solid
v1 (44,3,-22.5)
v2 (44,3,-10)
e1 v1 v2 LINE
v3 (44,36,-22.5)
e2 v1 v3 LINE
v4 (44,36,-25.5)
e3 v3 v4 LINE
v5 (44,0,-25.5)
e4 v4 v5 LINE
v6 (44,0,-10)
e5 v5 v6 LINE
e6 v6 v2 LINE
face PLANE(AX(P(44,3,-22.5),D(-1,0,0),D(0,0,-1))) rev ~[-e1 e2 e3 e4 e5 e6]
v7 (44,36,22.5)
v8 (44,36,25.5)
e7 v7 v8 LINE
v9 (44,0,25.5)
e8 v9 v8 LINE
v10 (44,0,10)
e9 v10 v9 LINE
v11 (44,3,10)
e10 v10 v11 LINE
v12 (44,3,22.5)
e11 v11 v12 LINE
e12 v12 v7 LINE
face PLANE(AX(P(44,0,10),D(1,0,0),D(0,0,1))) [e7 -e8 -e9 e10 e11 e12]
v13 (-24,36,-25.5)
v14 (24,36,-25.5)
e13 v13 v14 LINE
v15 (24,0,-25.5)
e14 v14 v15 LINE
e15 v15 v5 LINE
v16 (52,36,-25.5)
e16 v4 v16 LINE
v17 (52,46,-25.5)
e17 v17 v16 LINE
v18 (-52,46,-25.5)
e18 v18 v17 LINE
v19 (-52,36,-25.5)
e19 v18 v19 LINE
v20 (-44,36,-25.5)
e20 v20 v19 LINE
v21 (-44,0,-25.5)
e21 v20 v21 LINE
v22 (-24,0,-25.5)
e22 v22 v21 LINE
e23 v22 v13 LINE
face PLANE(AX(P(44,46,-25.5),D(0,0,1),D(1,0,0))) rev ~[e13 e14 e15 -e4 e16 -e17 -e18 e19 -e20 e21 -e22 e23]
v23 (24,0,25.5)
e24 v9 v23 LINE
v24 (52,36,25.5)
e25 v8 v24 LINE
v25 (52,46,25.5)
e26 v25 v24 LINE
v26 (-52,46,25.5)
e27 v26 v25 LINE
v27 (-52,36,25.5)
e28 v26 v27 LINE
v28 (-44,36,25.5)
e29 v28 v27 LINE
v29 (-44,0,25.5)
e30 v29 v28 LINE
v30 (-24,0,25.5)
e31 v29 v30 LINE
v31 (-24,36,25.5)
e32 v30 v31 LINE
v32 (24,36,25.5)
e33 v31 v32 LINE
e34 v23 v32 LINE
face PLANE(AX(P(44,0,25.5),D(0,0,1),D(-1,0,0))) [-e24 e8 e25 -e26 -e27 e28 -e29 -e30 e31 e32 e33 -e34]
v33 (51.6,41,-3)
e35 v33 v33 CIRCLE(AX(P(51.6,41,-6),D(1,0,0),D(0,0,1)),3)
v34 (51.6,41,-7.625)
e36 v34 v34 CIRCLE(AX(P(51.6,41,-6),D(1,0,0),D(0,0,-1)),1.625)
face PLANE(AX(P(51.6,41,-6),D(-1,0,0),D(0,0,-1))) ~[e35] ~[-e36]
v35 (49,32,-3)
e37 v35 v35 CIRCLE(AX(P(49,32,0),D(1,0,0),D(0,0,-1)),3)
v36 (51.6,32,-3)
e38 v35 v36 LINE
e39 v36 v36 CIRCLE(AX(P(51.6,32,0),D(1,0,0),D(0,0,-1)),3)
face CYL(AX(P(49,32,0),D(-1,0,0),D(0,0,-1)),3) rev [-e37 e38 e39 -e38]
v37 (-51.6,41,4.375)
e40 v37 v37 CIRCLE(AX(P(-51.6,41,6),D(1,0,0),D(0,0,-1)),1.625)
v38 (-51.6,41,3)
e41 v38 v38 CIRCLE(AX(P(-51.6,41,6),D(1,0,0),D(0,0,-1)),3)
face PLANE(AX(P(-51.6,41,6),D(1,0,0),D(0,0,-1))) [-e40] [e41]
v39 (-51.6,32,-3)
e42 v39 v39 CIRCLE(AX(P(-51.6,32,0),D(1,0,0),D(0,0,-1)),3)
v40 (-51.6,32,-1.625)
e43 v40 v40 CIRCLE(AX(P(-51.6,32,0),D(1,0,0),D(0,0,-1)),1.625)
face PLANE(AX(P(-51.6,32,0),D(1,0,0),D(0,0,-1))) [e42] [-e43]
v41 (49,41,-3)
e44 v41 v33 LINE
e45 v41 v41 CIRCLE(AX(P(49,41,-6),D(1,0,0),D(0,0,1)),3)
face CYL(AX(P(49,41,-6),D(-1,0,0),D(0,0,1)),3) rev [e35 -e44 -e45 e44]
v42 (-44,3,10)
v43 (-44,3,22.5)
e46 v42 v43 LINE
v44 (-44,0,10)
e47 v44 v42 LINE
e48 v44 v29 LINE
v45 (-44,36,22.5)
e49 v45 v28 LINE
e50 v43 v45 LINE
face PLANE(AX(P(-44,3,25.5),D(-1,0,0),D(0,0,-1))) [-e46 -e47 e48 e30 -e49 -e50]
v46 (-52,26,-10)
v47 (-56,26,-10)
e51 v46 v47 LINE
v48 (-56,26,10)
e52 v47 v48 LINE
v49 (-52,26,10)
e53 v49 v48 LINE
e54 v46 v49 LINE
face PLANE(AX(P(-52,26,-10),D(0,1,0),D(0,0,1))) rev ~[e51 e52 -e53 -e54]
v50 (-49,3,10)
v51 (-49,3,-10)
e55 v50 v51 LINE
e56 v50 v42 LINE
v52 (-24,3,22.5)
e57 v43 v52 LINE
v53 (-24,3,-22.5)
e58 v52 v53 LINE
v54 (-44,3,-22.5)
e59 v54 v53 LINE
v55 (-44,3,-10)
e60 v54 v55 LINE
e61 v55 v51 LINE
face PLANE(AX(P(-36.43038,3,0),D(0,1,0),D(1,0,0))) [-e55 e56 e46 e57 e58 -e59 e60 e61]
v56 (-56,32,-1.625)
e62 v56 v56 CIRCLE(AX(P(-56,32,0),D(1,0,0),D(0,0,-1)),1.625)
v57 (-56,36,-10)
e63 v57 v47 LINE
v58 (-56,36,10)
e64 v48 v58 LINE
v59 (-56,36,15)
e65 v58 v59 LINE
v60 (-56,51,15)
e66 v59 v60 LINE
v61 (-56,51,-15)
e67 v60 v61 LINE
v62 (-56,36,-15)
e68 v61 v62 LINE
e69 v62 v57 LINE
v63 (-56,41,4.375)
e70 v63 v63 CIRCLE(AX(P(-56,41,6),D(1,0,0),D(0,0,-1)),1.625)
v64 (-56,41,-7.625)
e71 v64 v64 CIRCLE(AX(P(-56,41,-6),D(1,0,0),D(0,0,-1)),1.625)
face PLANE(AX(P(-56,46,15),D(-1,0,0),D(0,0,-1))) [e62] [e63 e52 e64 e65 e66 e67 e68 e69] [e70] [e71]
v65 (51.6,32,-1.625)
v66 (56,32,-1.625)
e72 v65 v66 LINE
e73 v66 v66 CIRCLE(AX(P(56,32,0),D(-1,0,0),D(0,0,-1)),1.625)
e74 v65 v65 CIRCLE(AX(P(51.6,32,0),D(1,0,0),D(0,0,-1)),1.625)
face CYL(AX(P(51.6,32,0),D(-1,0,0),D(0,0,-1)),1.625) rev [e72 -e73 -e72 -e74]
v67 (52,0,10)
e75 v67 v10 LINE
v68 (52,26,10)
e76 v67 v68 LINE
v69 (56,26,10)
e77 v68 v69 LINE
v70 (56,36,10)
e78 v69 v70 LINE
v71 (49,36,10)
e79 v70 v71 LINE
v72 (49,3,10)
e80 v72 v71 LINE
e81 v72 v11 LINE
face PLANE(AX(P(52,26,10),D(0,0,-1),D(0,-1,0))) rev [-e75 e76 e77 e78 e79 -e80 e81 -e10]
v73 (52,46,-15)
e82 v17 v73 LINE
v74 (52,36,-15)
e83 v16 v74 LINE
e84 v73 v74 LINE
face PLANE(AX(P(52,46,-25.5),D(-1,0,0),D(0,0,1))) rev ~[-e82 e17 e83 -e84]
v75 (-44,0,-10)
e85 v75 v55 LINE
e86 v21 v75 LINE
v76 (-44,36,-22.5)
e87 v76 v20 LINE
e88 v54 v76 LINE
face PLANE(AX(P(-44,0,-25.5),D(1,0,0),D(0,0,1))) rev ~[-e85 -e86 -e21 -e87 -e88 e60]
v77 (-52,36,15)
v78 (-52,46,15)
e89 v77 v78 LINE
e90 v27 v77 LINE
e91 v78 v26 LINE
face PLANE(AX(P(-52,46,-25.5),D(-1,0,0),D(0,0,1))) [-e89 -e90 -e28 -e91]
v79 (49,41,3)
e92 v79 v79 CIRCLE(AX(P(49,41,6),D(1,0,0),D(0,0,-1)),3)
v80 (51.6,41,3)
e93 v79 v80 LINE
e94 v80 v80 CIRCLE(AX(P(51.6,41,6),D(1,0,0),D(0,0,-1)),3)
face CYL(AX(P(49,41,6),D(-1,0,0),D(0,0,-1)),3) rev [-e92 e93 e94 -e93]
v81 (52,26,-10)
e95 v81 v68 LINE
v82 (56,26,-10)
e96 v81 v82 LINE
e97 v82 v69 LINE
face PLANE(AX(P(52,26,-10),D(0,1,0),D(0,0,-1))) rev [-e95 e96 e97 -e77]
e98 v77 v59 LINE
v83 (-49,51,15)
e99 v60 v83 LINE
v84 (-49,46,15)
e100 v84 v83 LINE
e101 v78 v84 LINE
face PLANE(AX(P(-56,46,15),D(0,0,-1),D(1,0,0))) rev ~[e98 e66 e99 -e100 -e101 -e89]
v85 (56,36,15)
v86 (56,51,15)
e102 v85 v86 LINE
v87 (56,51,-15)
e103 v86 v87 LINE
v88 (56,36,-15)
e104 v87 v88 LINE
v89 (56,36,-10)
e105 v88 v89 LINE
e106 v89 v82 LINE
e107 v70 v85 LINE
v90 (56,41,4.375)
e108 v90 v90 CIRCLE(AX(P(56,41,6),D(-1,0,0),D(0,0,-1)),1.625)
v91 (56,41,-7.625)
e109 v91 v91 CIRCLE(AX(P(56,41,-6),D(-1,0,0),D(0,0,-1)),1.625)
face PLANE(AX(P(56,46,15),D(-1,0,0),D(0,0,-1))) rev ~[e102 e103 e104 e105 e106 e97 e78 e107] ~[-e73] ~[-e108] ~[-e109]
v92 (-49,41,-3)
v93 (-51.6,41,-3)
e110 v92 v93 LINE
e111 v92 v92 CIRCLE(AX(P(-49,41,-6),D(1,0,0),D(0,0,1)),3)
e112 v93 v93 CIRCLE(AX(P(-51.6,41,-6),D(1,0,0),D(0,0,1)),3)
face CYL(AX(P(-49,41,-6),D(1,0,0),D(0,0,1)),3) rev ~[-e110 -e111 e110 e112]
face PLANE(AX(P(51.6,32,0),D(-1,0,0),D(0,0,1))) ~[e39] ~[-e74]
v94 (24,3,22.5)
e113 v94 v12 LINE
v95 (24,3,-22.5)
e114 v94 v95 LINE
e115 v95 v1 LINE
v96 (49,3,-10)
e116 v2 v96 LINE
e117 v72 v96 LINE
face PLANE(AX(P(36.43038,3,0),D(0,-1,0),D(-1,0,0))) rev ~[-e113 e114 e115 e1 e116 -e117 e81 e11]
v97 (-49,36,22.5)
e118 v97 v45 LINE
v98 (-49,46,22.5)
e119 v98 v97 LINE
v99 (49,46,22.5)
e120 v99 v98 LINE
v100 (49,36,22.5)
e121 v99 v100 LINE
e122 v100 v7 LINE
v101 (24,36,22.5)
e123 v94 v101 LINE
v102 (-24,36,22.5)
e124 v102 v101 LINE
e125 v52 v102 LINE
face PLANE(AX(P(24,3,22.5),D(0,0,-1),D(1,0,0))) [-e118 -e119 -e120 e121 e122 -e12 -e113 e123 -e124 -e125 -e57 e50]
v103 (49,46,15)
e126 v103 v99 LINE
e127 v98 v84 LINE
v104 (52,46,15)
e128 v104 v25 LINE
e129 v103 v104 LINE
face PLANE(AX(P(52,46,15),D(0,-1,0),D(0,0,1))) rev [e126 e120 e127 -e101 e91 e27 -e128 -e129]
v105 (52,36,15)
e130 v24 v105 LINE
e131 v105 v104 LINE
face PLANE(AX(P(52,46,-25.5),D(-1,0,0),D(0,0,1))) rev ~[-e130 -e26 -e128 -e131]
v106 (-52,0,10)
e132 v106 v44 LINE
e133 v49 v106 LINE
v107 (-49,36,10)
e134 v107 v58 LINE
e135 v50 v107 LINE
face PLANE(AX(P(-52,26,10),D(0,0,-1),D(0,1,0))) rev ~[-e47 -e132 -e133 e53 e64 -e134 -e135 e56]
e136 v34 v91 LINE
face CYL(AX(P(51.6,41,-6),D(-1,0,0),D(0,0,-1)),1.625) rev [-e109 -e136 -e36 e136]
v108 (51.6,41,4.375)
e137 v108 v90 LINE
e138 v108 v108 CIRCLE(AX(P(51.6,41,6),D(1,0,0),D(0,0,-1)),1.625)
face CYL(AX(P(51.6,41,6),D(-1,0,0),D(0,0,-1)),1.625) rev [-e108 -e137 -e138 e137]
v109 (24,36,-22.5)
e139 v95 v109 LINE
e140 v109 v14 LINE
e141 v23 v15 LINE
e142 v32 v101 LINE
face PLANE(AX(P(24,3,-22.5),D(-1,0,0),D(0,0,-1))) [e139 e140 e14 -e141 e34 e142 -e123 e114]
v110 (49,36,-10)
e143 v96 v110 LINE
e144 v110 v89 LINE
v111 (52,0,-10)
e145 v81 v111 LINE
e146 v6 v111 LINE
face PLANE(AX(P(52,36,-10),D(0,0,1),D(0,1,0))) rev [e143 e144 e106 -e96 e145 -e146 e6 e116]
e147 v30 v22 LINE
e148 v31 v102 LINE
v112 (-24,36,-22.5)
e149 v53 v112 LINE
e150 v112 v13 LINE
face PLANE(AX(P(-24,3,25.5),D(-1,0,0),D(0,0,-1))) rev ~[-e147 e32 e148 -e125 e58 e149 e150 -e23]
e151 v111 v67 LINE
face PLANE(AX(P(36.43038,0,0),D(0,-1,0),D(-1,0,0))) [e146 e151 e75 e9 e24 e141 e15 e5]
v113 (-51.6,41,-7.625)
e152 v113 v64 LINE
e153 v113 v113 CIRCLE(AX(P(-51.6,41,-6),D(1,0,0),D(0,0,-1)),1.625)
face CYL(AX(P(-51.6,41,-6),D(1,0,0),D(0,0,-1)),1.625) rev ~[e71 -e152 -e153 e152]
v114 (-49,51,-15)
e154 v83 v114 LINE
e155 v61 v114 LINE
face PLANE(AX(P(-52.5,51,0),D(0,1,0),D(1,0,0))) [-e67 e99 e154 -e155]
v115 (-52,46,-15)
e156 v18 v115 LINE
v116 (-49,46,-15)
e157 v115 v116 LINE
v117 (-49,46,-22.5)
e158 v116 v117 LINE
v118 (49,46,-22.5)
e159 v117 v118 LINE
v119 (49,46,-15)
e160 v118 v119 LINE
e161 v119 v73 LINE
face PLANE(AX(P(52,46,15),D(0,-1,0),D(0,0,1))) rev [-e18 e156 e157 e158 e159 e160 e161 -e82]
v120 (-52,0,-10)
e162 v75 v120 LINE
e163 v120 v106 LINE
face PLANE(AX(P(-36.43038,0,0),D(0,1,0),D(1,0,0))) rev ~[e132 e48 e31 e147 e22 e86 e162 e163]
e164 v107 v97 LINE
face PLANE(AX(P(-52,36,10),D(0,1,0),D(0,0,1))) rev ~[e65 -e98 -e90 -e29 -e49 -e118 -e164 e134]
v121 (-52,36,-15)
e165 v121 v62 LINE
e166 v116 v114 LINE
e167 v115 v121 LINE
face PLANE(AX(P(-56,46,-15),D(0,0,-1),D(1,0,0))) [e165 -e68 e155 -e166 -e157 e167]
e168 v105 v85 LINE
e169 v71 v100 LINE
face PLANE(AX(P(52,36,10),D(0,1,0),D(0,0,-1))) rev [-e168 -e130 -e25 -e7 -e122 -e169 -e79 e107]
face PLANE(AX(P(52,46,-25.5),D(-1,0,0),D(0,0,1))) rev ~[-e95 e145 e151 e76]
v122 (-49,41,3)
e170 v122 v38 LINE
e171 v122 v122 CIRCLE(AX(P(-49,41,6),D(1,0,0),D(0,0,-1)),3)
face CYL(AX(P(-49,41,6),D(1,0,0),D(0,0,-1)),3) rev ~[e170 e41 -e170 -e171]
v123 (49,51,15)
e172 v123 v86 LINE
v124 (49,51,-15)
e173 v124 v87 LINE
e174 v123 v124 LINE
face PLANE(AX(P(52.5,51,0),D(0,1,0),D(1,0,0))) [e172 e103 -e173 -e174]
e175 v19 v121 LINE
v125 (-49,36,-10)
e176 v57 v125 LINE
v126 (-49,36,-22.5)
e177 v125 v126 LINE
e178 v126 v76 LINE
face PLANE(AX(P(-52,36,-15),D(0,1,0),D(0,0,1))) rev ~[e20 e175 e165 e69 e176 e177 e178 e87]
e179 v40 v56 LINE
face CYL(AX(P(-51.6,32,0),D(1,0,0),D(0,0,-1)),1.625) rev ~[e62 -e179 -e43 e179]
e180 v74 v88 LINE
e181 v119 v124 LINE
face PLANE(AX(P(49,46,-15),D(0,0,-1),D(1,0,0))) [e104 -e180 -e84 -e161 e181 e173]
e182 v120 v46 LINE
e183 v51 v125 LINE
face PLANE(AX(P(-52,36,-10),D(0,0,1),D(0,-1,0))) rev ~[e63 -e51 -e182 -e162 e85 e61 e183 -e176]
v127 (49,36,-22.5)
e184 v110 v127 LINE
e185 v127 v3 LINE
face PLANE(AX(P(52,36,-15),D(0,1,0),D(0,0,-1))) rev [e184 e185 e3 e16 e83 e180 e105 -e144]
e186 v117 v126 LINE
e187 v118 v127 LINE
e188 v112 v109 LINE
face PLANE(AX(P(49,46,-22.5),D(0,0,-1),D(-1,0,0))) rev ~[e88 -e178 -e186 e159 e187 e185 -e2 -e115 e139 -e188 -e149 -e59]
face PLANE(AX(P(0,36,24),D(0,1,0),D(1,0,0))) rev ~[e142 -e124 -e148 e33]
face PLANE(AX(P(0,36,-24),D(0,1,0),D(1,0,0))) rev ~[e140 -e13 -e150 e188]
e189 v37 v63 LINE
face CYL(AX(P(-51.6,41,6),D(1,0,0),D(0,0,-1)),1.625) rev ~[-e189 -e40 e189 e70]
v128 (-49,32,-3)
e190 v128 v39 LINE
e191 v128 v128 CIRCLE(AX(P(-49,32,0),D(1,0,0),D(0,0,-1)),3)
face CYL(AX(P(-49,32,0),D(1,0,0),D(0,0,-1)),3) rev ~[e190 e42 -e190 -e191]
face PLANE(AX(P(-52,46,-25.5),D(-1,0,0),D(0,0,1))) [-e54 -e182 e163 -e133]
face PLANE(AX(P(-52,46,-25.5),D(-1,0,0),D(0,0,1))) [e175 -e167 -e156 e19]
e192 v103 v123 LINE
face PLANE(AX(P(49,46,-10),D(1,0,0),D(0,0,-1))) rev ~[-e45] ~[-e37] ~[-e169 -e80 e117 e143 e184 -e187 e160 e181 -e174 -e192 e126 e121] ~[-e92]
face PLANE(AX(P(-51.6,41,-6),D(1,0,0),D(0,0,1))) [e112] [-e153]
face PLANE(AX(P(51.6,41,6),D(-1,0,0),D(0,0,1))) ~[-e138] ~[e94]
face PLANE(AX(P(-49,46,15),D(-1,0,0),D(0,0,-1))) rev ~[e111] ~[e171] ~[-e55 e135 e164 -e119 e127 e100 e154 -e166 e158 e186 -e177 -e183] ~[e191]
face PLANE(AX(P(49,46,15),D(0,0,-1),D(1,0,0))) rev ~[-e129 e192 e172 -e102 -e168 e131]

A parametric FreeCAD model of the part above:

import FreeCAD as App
import Part
import Sketcher

V = App.Vector

doc = App.newDocument("Part")
body = doc.addObject("PartDesign::Body", "Body")

# Sketch on XZ plane
sketch1 = body.newObject("Sketcher::SketchObject", "Sketch")
sketch1.AttachmentSupport = (doc.getObject("XZ_Plane"), [""])
sketch1.MapMode = "FlatFace"
sketch1.addGeometry([
    Part.LineSegment(V(44, -26, 0), V(24, -26, 0)),  # 0
    Part.LineSegment(V(24, -26, 0), V(24, 26, 0)),  # 1
    Part.LineSegment(V(24, 26, 0), V(44, 26, 0)),  # 2
    Part.LineSegment(V(44, 26, 0), V(44, 10, 0)),  # 3
    Part.LineSegment(V(44, 10, 0), V(52, 10, 0)),  # 4
    Part.LineSegment(V(52, 10, 0), V(52, -10, 0)),  # 5
    Part.LineSegment(V(52, -10, 0), V(44, -10, 0)),  # 6
    Part.LineSegment(V(44, -10, 0), V(44, -26, 0)),  # 7
], False)
sketch1.addConstraint([
    Sketcher.Constraint("Coincident", 0, 2, 1, 1),
    Sketcher.Constraint("Coincident", 1, 2, 2, 1),
    Sketcher.Constraint("Coincident", 2, 2, 3, 1),
    Sketcher.Constraint("Coincident", 3, 2, 4, 1),
    Sketcher.Constraint("Coincident", 4, 2, 5, 1),
    Sketcher.Constraint("Coincident", 5, 2, 6, 1),
    Sketcher.Constraint("Coincident", 6, 2, 7, 1),
    Sketcher.Constraint("Coincident", 7, 2, 0, 1),
    Sketcher.Constraint("Horizontal", 0),
    Sketcher.Constraint("Vertical", 1),
    Sketcher.Constraint("Horizontal", 2),
    Sketcher.Constraint("Vertical", 3),
    Sketcher.Constraint("Horizontal", 4),
    Sketcher.Constraint("Vertical", 5),
    Sketcher.Constraint("Horizontal", 6),
    Sketcher.Constraint("Vertical", 7),
    Sketcher.Constraint("Symmetric", 3, 2, 6, 2, -1),
    Sketcher.Constraint("Equal", 2, 5),
    Sketcher.Constraint("Equal", 3, 7),
    Sketcher.Constraint("DistanceX", 0, 2, 0, 1, 20.0),
    Sketcher.Constraint("DistanceX", 4, 1, 4, 2, 8.0),
    Sketcher.Constraint("DistanceY", 1, 1, 1, 2, 51.0),
    Sketcher.Constraint("DistanceX", -1, 1, 0, 2, 24.0),
])
pad1 = body.newObject("PartDesign::Pad", "Pad")
pad1.Profile = sketch1
pad1.Length = 3
pad1.Reversed = True
body2 = doc.addObject("PartDesign::Body", "Body001")

# Sketch on XZ plane
sketch2 = body2.newObject("Sketcher::SketchObject", "Sketch001")
sketch2.AttachmentSupport = (doc.getObject("XZ_Plane001"), [""])
sketch2.MapMode = "FlatFace"
sketch2.addGeometry([
    Part.LineSegment(V(-24, 26, 0), V(-24, -26, 0)),  # 0
    Part.LineSegment(V(-24, -26, 0), V(-44, -26, 0)),  # 1
    Part.LineSegment(V(-44, -26, 0), V(-44, -10, 0)),  # 2
    Part.LineSegment(V(-44, -10, 0), V(-52, -10, 0)),  # 3
    Part.LineSegment(V(-52, -10, 0), V(-52, 10, 0)),  # 4
    Part.LineSegment(V(-52, 10, 0), V(-44, 10, 0)),  # 5
    Part.LineSegment(V(-44, 10, 0), V(-44, 26, 0)),  # 6
    Part.LineSegment(V(-44, 26, 0), V(-24, 26, 0)),  # 7
], False)
sketch2.addConstraint([
    Sketcher.Constraint("Coincident", 0, 2, 1, 1),
    Sketcher.Constraint("Coincident", 1, 2, 2, 1),
    Sketcher.Constraint("Coincident", 2, 2, 3, 1),
    Sketcher.Constraint("Coincident", 3, 2, 4, 1),
    Sketcher.Constraint("Coincident", 4, 2, 5, 1),
    Sketcher.Constraint("Coincident", 5, 2, 6, 1),
    Sketcher.Constraint("Coincident", 6, 2, 7, 1),
    Sketcher.Constraint("Coincident", 7, 2, 0, 1),
    Sketcher.Constraint("Vertical", 0),
    Sketcher.Constraint("Horizontal", 1),
    Sketcher.Constraint("Vertical", 2),
    Sketcher.Constraint("Horizontal", 3),
    Sketcher.Constraint("Vertical", 4),
    Sketcher.Constraint("Horizontal", 5),
    Sketcher.Constraint("Vertical", 6),
    Sketcher.Constraint("Horizontal", 7),
    Sketcher.Constraint("Symmetric", 2, 2, 5, 2, -1),
    Sketcher.Constraint("Equal", 7, 4),
    Sketcher.Constraint("Equal", 2, 6),
    Sketcher.Constraint("DistanceX", 1, 2, 1, 1, 20.0),
    Sketcher.Constraint("DistanceX", 3, 2, 3, 1, 8.0),
    Sketcher.Constraint("DistanceY", 0, 2, 0, 1, 51.0),
    Sketcher.Constraint("DistanceX", 0, 2, -1, 1, 24.0),
])
pad2 = body2.newObject("PartDesign::Pad", "Pad001")
pad2.Profile = sketch2
pad2.Length = 3
pad2.Reversed = True
body.AllowCompound = True
doc.recompute()

boolean = body.newObject("PartDesign::Boolean", "Boolean")
boolean.Type = "Fuse"
boolean.addObjects([body2])

# Sketch on XZ plane
sketch3 = body.newObject("Sketcher::SketchObject", "Sketch002")
sketch3.AttachmentSupport = (doc.getObject("XZ_Plane"), [""])
sketch3.MapMode = "FlatFace"
sketch3.AttachmentOffset = App.Placement(V(0, 0, -3), App.Rotation())
sketch3.addGeometry([
    Part.LineSegment(V(24, -25.5, 0), V(24, -22.5, 0)),  # 0
    Part.LineSegment(V(24, -22.5, 0), V(44, -22.5, 0)),  # 1
    Part.LineSegment(V(44, -22.5, 0), V(44, -25.5, 0)),  # 2
    Part.LineSegment(V(44, -25.5, 0), V(24, -25.5, 0)),  # 3
    Part.LineSegment(V(49, -10, 0), V(49, 10, 0)),  # 4
    Part.LineSegment(V(49, 10, 0), V(52, 10, 0)),  # 5
    Part.LineSegment(V(52, 10, 0), V(52, -10, 0)),  # 6
    Part.LineSegment(V(52, -10, 0), V(49, -10, 0)),  # 7
    Part.LineSegment(V(24, 22.5, 0), V(24, 25.5, 0)),  # 8
    Part.LineSegment(V(24, 25.5, 0), V(44, 25.5, 0)),  # 9
    Part.LineSegment(V(44, 25.5, 0), V(44, 22.5, 0)),  # 10
    Part.LineSegment(V(44, 22.5, 0), V(24, 22.5, 0)),  # 11
    Part.LineSegment(V(-44, 22.5, 0), V(-44, 25.5, 0)),  # 12
    Part.LineSegment(V(-44, 25.5, 0), V(-24, 25.5, 0)),  # 13
    Part.LineSegment(V(-24, 25.5, 0), V(-24, 22.5, 0)),  # 14
    Part.LineSegment(V(-24, 22.5, 0), V(-44, 22.5, 0)),  # 15
    Part.LineSegment(V(-52, -10, 0), V(-52, 10, 0)),  # 16
    Part.LineSegment(V(-52, 10, 0), V(-49, 10, 0)),  # 17
    Part.LineSegment(V(-49, 10, 0), V(-49, -10, 0)),  # 18
    Part.LineSegment(V(-49, -10, 0), V(-52, -10, 0)),  # 19
    Part.LineSegment(V(-44, -25.5, 0), V(-44, -22.5, 0)),  # 20
    Part.LineSegment(V(-44, -22.5, 0), V(-24, -22.5, 0)),  # 21
    Part.LineSegment(V(-24, -22.5, 0), V(-24, -25.5, 0)),  # 22
    Part.LineSegment(V(-24, -25.5, 0), V(-44, -25.5, 0)),  # 23
], False)
sketch3.addConstraint([
    Sketcher.Constraint("Coincident", 0, 2, 1, 1),
    Sketcher.Constraint("Coincident", 1, 2, 2, 1),
    Sketcher.Constraint("Coincident", 2, 2, 3, 1),
    Sketcher.Constraint("Coincident", 3, 2, 0, 1),
    Sketcher.Constraint("Coincident", 4, 2, 5, 1),
    Sketcher.Constraint("Coincident", 5, 2, 6, 1),
    Sketcher.Constraint("Coincident", 6, 2, 7, 1),
    Sketcher.Constraint("Coincident", 7, 2, 4, 1),
    Sketcher.Constraint("Coincident", 8, 2, 9, 1),
    Sketcher.Constraint("Coincident", 9, 2, 10, 1),
    Sketcher.Constraint("Coincident", 10, 2, 11, 1),
    Sketcher.Constraint("Coincident", 11, 2, 8, 1),
    Sketcher.Constraint("Coincident", 12, 2, 13, 1),
    Sketcher.Constraint("Coincident", 13, 2, 14, 1),
    Sketcher.Constraint("Coincident", 14, 2, 15, 1),
    Sketcher.Constraint("Coincident", 15, 2, 12, 1),
    Sketcher.Constraint("Coincident", 16, 2, 17, 1),
    Sketcher.Constraint("Coincident", 17, 2, 18, 1),
    Sketcher.Constraint("Coincident", 18, 2, 19, 1),
    Sketcher.Constraint("Coincident", 19, 2, 16, 1),
    Sketcher.Constraint("Coincident", 20, 2, 21, 1),
    Sketcher.Constraint("Coincident", 21, 2, 22, 1),
    Sketcher.Constraint("Coincident", 22, 2, 23, 1),
    Sketcher.Constraint("Coincident", 23, 2, 20, 1),
    Sketcher.Constraint("Vertical", 0),
    Sketcher.Constraint("Horizontal", 1),
    Sketcher.Constraint("Vertical", 2),
    Sketcher.Constraint("Horizontal", 3),
    Sketcher.Constraint("Vertical", 4),
    Sketcher.Constraint("Horizontal", 5),
    Sketcher.Constraint("Vertical", 6),
    Sketcher.Constraint("Horizontal", 7),
    Sketcher.Constraint("Vertical", 8),
    Sketcher.Constraint("Horizontal", 9),
    Sketcher.Constraint("Vertical", 10),
    Sketcher.Constraint("Horizontal", 11),
    Sketcher.Constraint("Vertical", 12),
    Sketcher.Constraint("Horizontal", 13),
    Sketcher.Constraint("Vertical", 14),
    Sketcher.Constraint("Horizontal", 15),
    Sketcher.Constraint("Vertical", 16),
    Sketcher.Constraint("Horizontal", 17),
    Sketcher.Constraint("Vertical", 18),
    Sketcher.Constraint("Horizontal", 19),
    Sketcher.Constraint("Vertical", 20),
    Sketcher.Constraint("Horizontal", 21),
    Sketcher.Constraint("Vertical", 22),
    Sketcher.Constraint("Horizontal", 23),
    Sketcher.Constraint("Symmetric", 2, 2, 12, 2, -1, 1),
    Sketcher.Constraint("Symmetric", 0, 2, 14, 2, -1, 1),
    Sketcher.Constraint("Symmetric", 6, 2, 16, 2, -1, 1),
    Sketcher.Constraint("Symmetric", 4, 2, 18, 2, -1, 1),
    Sketcher.Constraint("Symmetric", 10, 2, 20, 2, -1, 1),
    Sketcher.Constraint("Symmetric", 8, 2, 22, 2, -1, 1),
    Sketcher.Constraint("Symmetric", 9, 2, 12, 2, -2),
    Sketcher.Constraint("Symmetric", 11, 2, 14, 2, -2),
    Sketcher.Constraint("Horizontal", 5, 2, 16, 2),
    Sketcher.Constraint("Equal", 19, 0),
    Sketcher.Constraint("Equal", 23, 4),
    Sketcher.Constraint("DistanceX", 1, 1, 1, 2, 20.0),
    Sketcher.Constraint("DistanceX", 5, 1, 5, 2, 3.0),
    Sketcher.Constraint("DistanceX", -1, 1, 0, 2, 24.0),
    Sketcher.Constraint("DistanceX", -1, 1, 4, 2, 49.0),
    Sketcher.Constraint("DistanceY", 0, 2, 8, 2, 48.0),
])
pad3 = body.newObject("PartDesign::Pad", "Pad002")
pad3.Profile = sketch3
pad3.Length = 43
pad3.Reversed = True

# Sketch on XZ plane
sketch4 = body.newObject("Sketcher::SketchObject", "Sketch003")
sketch4.AttachmentSupport = (doc.getObject("XZ_Plane"), [""])
sketch4.MapMode = "FlatFace"
sketch4.AttachmentOffset = App.Placement(V(0, 0, -46), App.Rotation())
sketch4.addGeometry([
    Part.LineSegment(V(52, -25.5, 0), V(44, -25.5, 0)),  # 0
    Part.LineSegment(V(44, -25.5, 0), V(44, -22.5, 0)),  # 1
    Part.LineSegment(V(44, -22.5, 0), V(49, -22.5, 0)),  # 2
    Part.LineSegment(V(49, -22.5, 0), V(49, -10, 0)),  # 3
    Part.LineSegment(V(49, -10, 0), V(52, -10, 0)),  # 4
    Part.LineSegment(V(52, -10, 0), V(52, -25.5, 0)),  # 5
    Part.LineSegment(V(-24, -25.5, 0), V(-24, -22.5, 0)),  # 6
    Part.LineSegment(V(-24, -22.5, 0), V(24, -22.5, 0)),  # 7
    Part.LineSegment(V(24, -22.5, 0), V(24, -25.5, 0)),  # 8
    Part.LineSegment(V(24, -25.5, 0), V(-24, -25.5, 0)),  # 9
    Part.LineSegment(V(-44, -22.5, 0), V(-44, -25.5, 0)),  # 10
    Part.LineSegment(V(-44, -25.5, 0), V(-52, -25.5, 0)),  # 11
    Part.LineSegment(V(-52, -25.5, 0), V(-52, -10, 0)),  # 12
    Part.LineSegment(V(-52, -10, 0), V(-49, -10, 0)),  # 13
    Part.LineSegment(V(-49, -10, 0), V(-49, -22.5, 0)),  # 14
    Part.LineSegment(V(-49, -22.5, 0), V(-44, -22.5, 0)),  # 15
    Part.LineSegment(V(-52, 25.5, 0), V(-44, 25.5, 0)),  # 16
    Part.LineSegment(V(-44, 25.5, 0), V(-44, 22.5, 0)),  # 17
    Part.LineSegment(V(-44, 22.5, 0), V(-49, 22.5, 0)),  # 18
    Part.LineSegment(V(-49, 22.5, 0), V(-49, 10, 0)),  # 19
    Part.LineSegment(V(-49, 10, 0), V(-52, 10, 0)),  # 20
    Part.LineSegment(V(-52, 10, 0), V(-52, 25.5, 0)),  # 21
    Part.LineSegment(V(44, 22.5, 0), V(44, 25.5, 0)),  # 22
    Part.LineSegment(V(44, 25.5, 0), V(52, 25.5, 0)),  # 23
    Part.LineSegment(V(52, 25.5, 0), V(52, 10, 0)),  # 24
    Part.LineSegment(V(52, 10, 0), V(49, 10, 0)),  # 25
    Part.LineSegment(V(49, 10, 0), V(49, 22.5, 0)),  # 26
    Part.LineSegment(V(49, 22.5, 0), V(44, 22.5, 0)),  # 27
    Part.LineSegment(V(-24, 22.5, 0), V(-24, 25.5, 0)),  # 28
    Part.LineSegment(V(-24, 25.5, 0), V(24, 25.5, 0)),  # 29
    Part.LineSegment(V(24, 25.5, 0), V(24, 22.5, 0)),  # 30
    Part.LineSegment(V(24, 22.5, 0), V(-24, 22.5, 0)),  # 31
], False)
sketch4.addConstraint([
    Sketcher.Constraint("Coincident", 0, 2, 1, 1),
    Sketcher.Constraint("Coincident", 1, 2, 2, 1),
    Sketcher.Constraint("Coincident", 2, 2, 3, 1),
    Sketcher.Constraint("Coincident", 3, 2, 4, 1),
    Sketcher.Constraint("Coincident", 4, 2, 5, 1),
    Sketcher.Constraint("Coincident", 5, 2, 0, 1),
    Sketcher.Constraint("Coincident", 6, 2, 7, 1),
    Sketcher.Constraint("Coincident", 7, 2, 8, 1),
    Sketcher.Constraint("Coincident", 8, 2, 9, 1),
    Sketcher.Constraint("Coincident", 9, 2, 6, 1),
    Sketcher.Constraint("Coincident", 10, 2, 11, 1),
    Sketcher.Constraint("Coincident", 11, 2, 12, 1),
    Sketcher.Constraint("Coincident", 12, 2, 13, 1),
    Sketcher.Constraint("Coincident", 13, 2, 14, 1),
    Sketcher.Constraint("Coincident", 14, 2, 15, 1),
    Sketcher.Constraint("Coincident", 15, 2, 10, 1),
    Sketcher.Constraint("Coincident", 16, 2, 17, 1),
    Sketcher.Constraint("Coincident", 17, 2, 18, 1),
    Sketcher.Constraint("Coincident", 18, 2, 19, 1),
    Sketcher.Constraint("Coincident", 19, 2, 20, 1),
    Sketcher.Constraint("Coincident", 20, 2, 21, 1),
    Sketcher.Constraint("Coincident", 21, 2, 16, 1),
    Sketcher.Constraint("Coincident", 22, 2, 23, 1),
    Sketcher.Constraint("Coincident", 23, 2, 24, 1),
    Sketcher.Constraint("Coincident", 24, 2, 25, 1),
    Sketcher.Constraint("Coincident", 25, 2, 26, 1),
    Sketcher.Constraint("Coincident", 26, 2, 27, 1),
    Sketcher.Constraint("Coincident", 27, 2, 22, 1),
    Sketcher.Constraint("Coincident", 28, 2, 29, 1),
    Sketcher.Constraint("Coincident", 29, 2, 30, 1),
    Sketcher.Constraint("Coincident", 30, 2, 31, 1),
    Sketcher.Constraint("Coincident", 31, 2, 28, 1),
    Sketcher.Constraint("Horizontal", 0),
    Sketcher.Constraint("Vertical", 1),
    Sketcher.Constraint("Horizontal", 2),
    Sketcher.Constraint("Vertical", 3),
    Sketcher.Constraint("Horizontal", 4),
    Sketcher.Constraint("Vertical", 5),
    Sketcher.Constraint("Vertical", 6),
    Sketcher.Constraint("Horizontal", 7),
    Sketcher.Constraint("Vertical", 8),
    Sketcher.Constraint("Horizontal", 9),
    Sketcher.Constraint("Vertical", 10),
    Sketcher.Constraint("Horizontal", 11),
    Sketcher.Constraint("Vertical", 12),
    Sketcher.Constraint("Horizontal", 13),
    Sketcher.Constraint("Vertical", 14),
    Sketcher.Constraint("Horizontal", 15),
    Sketcher.Constraint("Horizontal", 16),
    Sketcher.Constraint("Vertical", 17),
    Sketcher.Constraint("Horizontal", 18),
    Sketcher.Constraint("Vertical", 19),
    Sketcher.Constraint("Horizontal", 20),
    Sketcher.Constraint("Vertical", 21),
    Sketcher.Constraint("Vertical", 22),
    Sketcher.Constraint("Horizontal", 23),
    Sketcher.Constraint("Vertical", 24),
    Sketcher.Constraint("Horizontal", 25),
    Sketcher.Constraint("Vertical", 26),
    Sketcher.Constraint("Horizontal", 27),
    Sketcher.Constraint("Vertical", 28),
    Sketcher.Constraint("Horizontal", 29),
    Sketcher.Constraint("Vertical", 30),
    Sketcher.Constraint("Horizontal", 31),
    Sketcher.Constraint("Symmetric", 0, 2, 16, 2, -1, 1),
    Sketcher.Constraint("Symmetric", 2, 2, 18, 2, -1, 1),
    Sketcher.Constraint("Symmetric", 4, 2, 20, 2, -1, 1),
    Sketcher.Constraint("Symmetric", 10, 2, 22, 2, -1, 1),
    Sketcher.Constraint("Symmetric", 12, 2, 24, 2, -1, 1),
    Sketcher.Constraint("Symmetric", 14, 2, 26, 2, -1, 1),
    Sketcher.Constraint("Symmetric", 8, 2, 28, 2, -1, 1),
    Sketcher.Constraint("Symmetric", 6, 2, 30, 2, -1, 1),
    Sketcher.Constraint("Symmetric", 0, 2, 10, 2, -2),
    Sketcher.Constraint("Symmetric", 4, 2, 12, 2, -2),
    Sketcher.Constraint("Symmetric", 2, 2, 14, 2, -2),
    Sketcher.Constraint("Horizontal", 2, 2, 6, 2),
    Sketcher.Constraint("Horizontal", 5, 2, 8, 2),
    Sketcher.Constraint("Vertical", 9, 2, 28, 2),
    Sketcher.Constraint("Equal", 25, 1),
    Sketcher.Constraint("DistanceX", 0, 2, 0, 1, 8.0),
    Sketcher.Constraint("DistanceX", 2, 1, 2, 2, 5.0),
    Sketcher.Constraint("DistanceX", 7, 1, 7, 2, 48.0),
    Sketcher.Constraint("DistanceY", 3, 1, 3, 2, 12.5),
    Sketcher.Constraint("DistanceX", -1, 1, 0, 2, 44.0),
    Sketcher.Constraint("DistanceY", 3, 2, -1, 1, 10.0),
])
pad4 = body.newObject("PartDesign::Pad", "Pad003")
pad4.Profile = sketch4
pad4.Length = 10

# Sketch on YZ plane
sketch5 = body.newObject("Sketcher::SketchObject", "Sketch004")
sketch5.AttachmentSupport = (doc.getObject("YZ_Plane"), [""])
sketch5.MapMode = "FlatFace"
sketch5.AttachmentOffset = App.Placement(V(0, 0, -52), App.Rotation())
sketch5.addGeometry([
    Part.LineSegment(V(26, -10, 0), V(26, 10, 0)),  # 0
    Part.LineSegment(V(26, 10, 0), V(36, 10, 0)),  # 1
    Part.LineSegment(V(36, 10, 0), V(36, 15, 0)),  # 2
    Part.LineSegment(V(36, 15, 0), V(46, 15, 0)),  # 3
    Part.LineSegment(V(46, 15, 0), V(46, -15, 0)),  # 4
    Part.LineSegment(V(46, -15, 0), V(36, -15, 0)),  # 5
    Part.LineSegment(V(36, -15, 0), V(36, -10, 0)),  # 6
    Part.LineSegment(V(36, -10, 0), V(26, -10, 0)),  # 7
], False)
sketch5.addConstraint([
    Sketcher.Constraint("Coincident", 0, 2, 1, 1),
    Sketcher.Constraint("Coincident", 1, 2, 2, 1),
    Sketcher.Constraint("Coincident", 2, 2, 3, 1),
    Sketcher.Constraint("Coincident", 3, 2, 4, 1),
    Sketcher.Constraint("Coincident", 4, 2, 5, 1),
    Sketcher.Constraint("Coincident", 5, 2, 6, 1),
    Sketcher.Constraint("Coincident", 6, 2, 7, 1),
    Sketcher.Constraint("Coincident", 7, 2, 0, 1),
    Sketcher.Constraint("Vertical", 0),
    Sketcher.Constraint("Horizontal", 1),
    Sketcher.Constraint("Vertical", 2),
    Sketcher.Constraint("Horizontal", 3),
    Sketcher.Constraint("Vertical", 4),
    Sketcher.Constraint("Horizontal", 5),
    Sketcher.Constraint("Vertical", 6),
    Sketcher.Constraint("Horizontal", 7),
    Sketcher.Constraint("Symmetric", 2, 2, 5, 2, -1),
    Sketcher.Constraint("Equal", 1, 3),
    Sketcher.Constraint("Equal", 2, 6),
    Sketcher.Constraint("DistanceX", 1, 1, 1, 2, 10.0),
    Sketcher.Constraint("DistanceY", 0, 1, 0, 2, 20.0),
    Sketcher.Constraint("DistanceY", 2, 1, 2, 2, 5.0),
    Sketcher.Constraint("DistanceX", -1, 1, 0, 2, 26.0),
])
pad5 = body.newObject("PartDesign::Pad", "Pad004")
pad5.Profile = sketch5
pad5.Length = 4
pad5.Reversed = True

# Sketch on YZ plane
sketch6 = body.newObject("Sketcher::SketchObject", "Sketch005")
sketch6.AttachmentSupport = (doc.getObject("YZ_Plane"), [""])
sketch6.MapMode = "FlatFace"
sketch6.AttachmentOffset = App.Placement(V(0, 0, -49), App.Rotation())
sketch6.addGeometry([
    Part.Circle(V(41, 6, 0), V(0, 0, 1), 3),
    Part.Circle(V(32, 0, 0), V(0, 0, 1), 3),
    Part.Circle(V(41, -6, 0), V(0, 0, 1), 3),
], False)
sketch6.addConstraint([
    Sketcher.Constraint("Equal", 0, 1),
    Sketcher.Constraint("Equal", 1, 2),
    Sketcher.Constraint("Symmetric", 0, 3, 2, 3, -1),
    Sketcher.Constraint("PointOnObject", 1, 3, -1),
    Sketcher.Constraint("Diameter", 0, 6.0),
    Sketcher.Constraint("DistanceX", -1, 1, 0, 3, 41.0),
    Sketcher.Constraint("DistanceY", -1, 1, 0, 3, 6.0),
    Sketcher.Constraint("DistanceX", -1, 1, 1, 3, 32.0),
])
pocket1 = body.newObject("PartDesign::Pocket", "Pocket")
pocket1.Profile = sketch6
pocket1.Length = 2.6

# Sketch on YZ plane
sketch7 = body.newObject("Sketcher::SketchObject", "Sketch006")
sketch7.AttachmentSupport = (doc.getObject("YZ_Plane"), [""])
sketch7.MapMode = "FlatFace"
sketch7.AttachmentOffset = App.Placement(V(0, 0, -51.6), App.Rotation())
sketch7.addGeometry([
    Part.Circle(V(41, 6, 0), V(0, 0, 1), 1.6),
    Part.Circle(V(41, -6, 0), V(0, 0, 1), 1.6),
    Part.Circle(V(32, 0, 0), V(0, 0, 1), 1.6),
], False)
sketch7.addConstraint([
    Sketcher.Constraint("Equal", 0, 1),
    Sketcher.Constraint("Equal", 1, 2),
    Sketcher.Constraint("Symmetric", 0, 3, 1, 3, -1),
    Sketcher.Constraint("PointOnObject", 2, 3, -1),
    Sketcher.Constraint("Diameter", 0, 3.25),
    Sketcher.Constraint("DistanceX", -1, 1, 0, 3, 41.0),
    Sketcher.Constraint("DistanceY", -1, 1, 0, 3, 6.0),
    Sketcher.Constraint("DistanceX", -1, 1, 2, 3, 32.0),
])
pocket2 = body.newObject("PartDesign::Pocket", "Pocket001")
pocket2.Profile = sketch7
pocket2.Type = "ThroughAll"
doc.recompute()

mirrored = body.newObject("PartDesign::Mirrored", "Mirrored")
mirrored.Originals = [pad5, pocket1, pocket2]
mirrored.MirrorPlane = (doc.getObject("YZ_Plane"), [""])
body.Tip = mirrored

# Sketch on XZ plane
sketch8 = body.newObject("Sketcher::SketchObject", "Sketch007")
sketch8.AttachmentSupport = (doc.getObject("XZ_Plane"), [""])
sketch8.MapMode = "FlatFace"
sketch8.AttachmentOffset = App.Placement(V(0, 0, -46), App.Rotation())
sketch8.addGeometry([
    Part.LineSegment(V(-56, -15, 0), V(-56, 15, 0)),  # 0
    Part.LineSegment(V(-56, 15, 0), V(-49, 15, 0)),  # 1
    Part.LineSegment(V(-49, 15, 0), V(-49, -15, 0)),  # 2
    Part.LineSegment(V(-49, -15, 0), V(-56, -15, 0)),  # 3
    Part.LineSegment(V(49, -15, 0), V(49, 15, 0)),  # 4
    Part.LineSegment(V(49, 15, 0), V(56, 15, 0)),  # 5
    Part.LineSegment(V(56, 15, 0), V(56, -15, 0)),  # 6
    Part.LineSegment(V(56, -15, 0), V(49, -15, 0)),  # 7
], False)
sketch8.addConstraint([
    Sketcher.Constraint("Coincident", 0, 2, 1, 1),
    Sketcher.Constraint("Coincident", 1, 2, 2, 1),
    Sketcher.Constraint("Coincident", 2, 2, 3, 1),
    Sketcher.Constraint("Coincident", 3, 2, 0, 1),
    Sketcher.Constraint("Coincident", 4, 2, 5, 1),
    Sketcher.Constraint("Coincident", 5, 2, 6, 1),
    Sketcher.Constraint("Coincident", 6, 2, 7, 1),
    Sketcher.Constraint("Coincident", 7, 2, 4, 1),
    Sketcher.Constraint("Vertical", 0),
    Sketcher.Constraint("Horizontal", 1),
    Sketcher.Constraint("Vertical", 2),
    Sketcher.Constraint("Horizontal", 3),
    Sketcher.Constraint("Vertical", 4),
    Sketcher.Constraint("Horizontal", 5),
    Sketcher.Constraint("Vertical", 6),
    Sketcher.Constraint("Horizontal", 7),
    Sketcher.Constraint("Symmetric", 2, 2, 4, 2, -1, 1),
    Sketcher.Constraint("Symmetric", 0, 2, 6, 2, -1, 1),
    Sketcher.Constraint("Horizontal", 1, 2, 4, 2),
    Sketcher.Constraint("DistanceX", 1, 1, 1, 2, 7.0),
    Sketcher.Constraint("DistanceY", 0, 1, 0, 2, 30.0),
    Sketcher.Constraint("DistanceX", 0, 2, -1, 1, 56.0),
])
pad6 = body.newObject("PartDesign::Pad", "Pad005")
pad6.Profile = sketch8
pad6.Length = 5
pad6.Reversed = True

doc.recompute()
